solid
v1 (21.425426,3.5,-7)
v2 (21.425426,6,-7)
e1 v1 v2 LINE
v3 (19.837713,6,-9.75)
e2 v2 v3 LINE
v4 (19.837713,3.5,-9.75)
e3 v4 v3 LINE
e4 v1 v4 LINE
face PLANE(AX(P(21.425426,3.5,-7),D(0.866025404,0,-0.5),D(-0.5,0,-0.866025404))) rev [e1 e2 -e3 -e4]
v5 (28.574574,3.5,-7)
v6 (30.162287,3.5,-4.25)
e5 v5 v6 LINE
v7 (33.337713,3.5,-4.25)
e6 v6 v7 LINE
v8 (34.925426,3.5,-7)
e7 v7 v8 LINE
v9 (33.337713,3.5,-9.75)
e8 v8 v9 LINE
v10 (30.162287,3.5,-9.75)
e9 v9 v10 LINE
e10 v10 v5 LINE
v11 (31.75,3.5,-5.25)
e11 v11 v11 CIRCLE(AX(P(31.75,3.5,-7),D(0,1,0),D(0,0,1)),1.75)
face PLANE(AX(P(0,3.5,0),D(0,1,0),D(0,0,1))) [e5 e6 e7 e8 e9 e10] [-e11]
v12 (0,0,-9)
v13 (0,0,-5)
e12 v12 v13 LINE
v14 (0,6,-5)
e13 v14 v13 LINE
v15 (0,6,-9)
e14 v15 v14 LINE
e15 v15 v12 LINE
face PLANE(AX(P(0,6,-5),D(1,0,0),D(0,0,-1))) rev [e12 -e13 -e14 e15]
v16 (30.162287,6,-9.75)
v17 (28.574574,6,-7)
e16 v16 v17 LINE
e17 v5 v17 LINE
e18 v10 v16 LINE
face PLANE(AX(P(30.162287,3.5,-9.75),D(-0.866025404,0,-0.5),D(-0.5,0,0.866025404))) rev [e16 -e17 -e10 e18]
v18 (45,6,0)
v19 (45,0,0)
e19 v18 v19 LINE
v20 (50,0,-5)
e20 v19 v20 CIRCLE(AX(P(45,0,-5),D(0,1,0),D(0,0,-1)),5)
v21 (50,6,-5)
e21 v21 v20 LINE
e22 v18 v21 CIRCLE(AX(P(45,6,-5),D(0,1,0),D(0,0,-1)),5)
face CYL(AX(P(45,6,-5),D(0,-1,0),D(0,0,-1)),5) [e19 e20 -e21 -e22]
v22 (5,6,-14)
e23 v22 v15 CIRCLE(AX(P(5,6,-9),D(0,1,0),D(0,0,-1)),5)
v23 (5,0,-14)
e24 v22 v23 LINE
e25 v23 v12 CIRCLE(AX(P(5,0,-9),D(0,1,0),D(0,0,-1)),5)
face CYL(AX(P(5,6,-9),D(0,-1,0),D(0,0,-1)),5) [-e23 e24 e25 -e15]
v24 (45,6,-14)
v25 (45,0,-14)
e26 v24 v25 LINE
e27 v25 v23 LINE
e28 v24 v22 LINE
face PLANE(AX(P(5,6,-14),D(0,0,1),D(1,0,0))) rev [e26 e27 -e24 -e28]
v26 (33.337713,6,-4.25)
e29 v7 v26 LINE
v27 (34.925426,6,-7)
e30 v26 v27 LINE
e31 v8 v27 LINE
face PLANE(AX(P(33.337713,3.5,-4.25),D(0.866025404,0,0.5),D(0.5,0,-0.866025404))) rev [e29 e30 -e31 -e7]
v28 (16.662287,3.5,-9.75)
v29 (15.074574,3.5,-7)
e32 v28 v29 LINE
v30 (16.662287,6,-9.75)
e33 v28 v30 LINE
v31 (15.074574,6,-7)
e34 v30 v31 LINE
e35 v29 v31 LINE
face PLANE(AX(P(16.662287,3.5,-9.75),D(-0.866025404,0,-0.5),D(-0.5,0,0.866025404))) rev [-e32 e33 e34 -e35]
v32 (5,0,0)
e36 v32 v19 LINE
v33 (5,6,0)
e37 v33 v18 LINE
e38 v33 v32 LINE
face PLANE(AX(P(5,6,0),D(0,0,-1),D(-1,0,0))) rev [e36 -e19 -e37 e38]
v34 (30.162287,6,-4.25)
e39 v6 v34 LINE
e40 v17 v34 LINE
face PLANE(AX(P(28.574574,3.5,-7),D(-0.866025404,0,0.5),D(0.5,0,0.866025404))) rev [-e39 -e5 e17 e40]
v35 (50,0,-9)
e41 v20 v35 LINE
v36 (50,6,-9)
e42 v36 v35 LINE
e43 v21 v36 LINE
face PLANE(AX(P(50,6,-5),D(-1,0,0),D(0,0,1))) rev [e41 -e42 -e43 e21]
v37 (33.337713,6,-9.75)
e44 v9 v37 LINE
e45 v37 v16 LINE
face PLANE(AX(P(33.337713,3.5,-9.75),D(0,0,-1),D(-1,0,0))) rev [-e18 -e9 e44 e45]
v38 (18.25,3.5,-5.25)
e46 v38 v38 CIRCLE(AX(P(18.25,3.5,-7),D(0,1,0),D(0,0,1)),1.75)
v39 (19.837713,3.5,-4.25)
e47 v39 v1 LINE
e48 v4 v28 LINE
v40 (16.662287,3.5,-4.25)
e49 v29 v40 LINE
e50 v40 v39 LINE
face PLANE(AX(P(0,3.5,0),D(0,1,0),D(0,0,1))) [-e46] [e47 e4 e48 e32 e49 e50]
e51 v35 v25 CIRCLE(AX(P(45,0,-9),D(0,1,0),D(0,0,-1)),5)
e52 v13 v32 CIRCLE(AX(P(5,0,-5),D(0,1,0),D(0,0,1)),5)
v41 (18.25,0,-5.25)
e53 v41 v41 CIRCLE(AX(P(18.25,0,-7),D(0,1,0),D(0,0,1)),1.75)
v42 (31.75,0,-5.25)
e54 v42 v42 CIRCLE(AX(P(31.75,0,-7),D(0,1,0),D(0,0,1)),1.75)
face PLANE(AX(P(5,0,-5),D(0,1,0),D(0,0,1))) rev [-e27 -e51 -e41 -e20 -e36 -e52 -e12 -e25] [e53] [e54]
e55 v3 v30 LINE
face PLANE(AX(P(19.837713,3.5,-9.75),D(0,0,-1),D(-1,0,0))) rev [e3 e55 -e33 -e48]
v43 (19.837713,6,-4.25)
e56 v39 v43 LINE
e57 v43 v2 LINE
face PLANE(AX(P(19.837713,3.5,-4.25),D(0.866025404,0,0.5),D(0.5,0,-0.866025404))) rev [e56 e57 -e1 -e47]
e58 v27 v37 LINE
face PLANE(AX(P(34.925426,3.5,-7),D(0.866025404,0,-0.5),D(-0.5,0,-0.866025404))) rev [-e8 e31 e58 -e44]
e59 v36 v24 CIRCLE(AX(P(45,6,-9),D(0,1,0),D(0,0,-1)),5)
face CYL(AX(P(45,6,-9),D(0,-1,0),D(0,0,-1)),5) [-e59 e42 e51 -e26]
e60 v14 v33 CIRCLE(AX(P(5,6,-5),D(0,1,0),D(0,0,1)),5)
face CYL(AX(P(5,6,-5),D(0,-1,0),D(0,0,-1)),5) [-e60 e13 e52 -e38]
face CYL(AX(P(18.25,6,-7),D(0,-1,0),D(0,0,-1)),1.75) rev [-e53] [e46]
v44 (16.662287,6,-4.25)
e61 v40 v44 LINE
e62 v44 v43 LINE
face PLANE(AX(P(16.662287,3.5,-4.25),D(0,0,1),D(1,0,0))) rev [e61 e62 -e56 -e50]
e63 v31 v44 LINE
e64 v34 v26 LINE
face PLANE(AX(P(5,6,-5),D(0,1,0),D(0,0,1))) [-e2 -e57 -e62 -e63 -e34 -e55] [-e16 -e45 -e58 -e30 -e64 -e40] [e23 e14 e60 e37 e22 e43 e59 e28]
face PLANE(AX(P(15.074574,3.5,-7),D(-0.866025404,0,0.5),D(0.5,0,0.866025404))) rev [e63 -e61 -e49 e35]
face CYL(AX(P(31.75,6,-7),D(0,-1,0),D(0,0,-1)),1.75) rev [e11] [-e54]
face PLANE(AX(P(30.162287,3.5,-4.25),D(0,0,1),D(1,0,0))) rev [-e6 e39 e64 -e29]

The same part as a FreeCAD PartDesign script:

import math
import FreeCAD as App
import Part
import Sketcher
from FreeCAD import Vector
Q = App.Units.Quantity


def add_polygon(sketch, points):
    """Adds a closed chain of lines whose ends are joined by coincident constraints."""
    first, n = sketch.GeometryCount, len(points)
    for a, b in zip(points, points[1:] + points[:1]):
        sketch.addGeometry(Part.LineSegment(App.Vector(*a, 0), App.Vector(*b, 0)), False)
    for i in range(n):
        sketch.addConstraint(Sketcher.Constraint("Coincident", first + i, 2, first + (i + 1) % n, 1))

doc = App.newDocument("Part")
body = doc.addObject("PartDesign::Body", "Body")

sketch1 = doc.addObject("Sketcher::SketchObject", "Sketch")
body.addObject(sketch1)
sketch1.AttachmentSupport = (doc.XZ_Plane, [""])
sketch1.MapMode = "FlatFace"
sketch1.addGeometry([
    Part.LineSegment(Vector(5, 0, 0), Vector(45, 0, 0)),
    Part.ArcOfCircle(Part.Circle(Vector(45, -5, 0), Vector(0, 0, 1), 5), math.radians(0), math.radians(90)),
    Part.LineSegment(Vector(50, -5, 0), Vector(50, -9, 0)),
    Part.ArcOfCircle(Part.Circle(Vector(45, -9, 0), Vector(0, 0, 1), 5), math.radians(-90), math.radians(0)),
    Part.LineSegment(Vector(45, -14, 0), Vector(5, -14, 0)),
    Part.ArcOfCircle(Part.Circle(Vector(5, -9, 0), Vector(0, 0, 1), 5), math.radians(180), math.radians(270)),
    Part.LineSegment(Vector(0, -9, 0), Vector(0, -5, 0)),
    Part.ArcOfCircle(Part.Circle(Vector(5, -5, 0), Vector(0, 0, 1), 5), math.radians(90), math.radians(180)),
    Part.Circle(Vector(18.2, -7, 0), Vector(0, 0, 1), 1.8),
    Part.Circle(Vector(31.8, -7, 0), Vector(0, 0, 1), 1.8),
], False)
sketch1.addConstraint([
    Sketcher.Constraint("Tangent", 0, 2, 1, 2),
    Sketcher.Constraint("Tangent", 1, 1, 2, 1),
    Sketcher.Constraint("Tangent", 2, 2, 3, 2),
    Sketcher.Constraint("Tangent", 3, 1, 4, 1),
    Sketcher.Constraint("Tangent", 4, 2, 5, 2),
    Sketcher.Constraint("Tangent", 5, 1, 6, 1),
    Sketcher.Constraint("Tangent", 6, 2, 7, 2),
    Sketcher.Constraint("Tangent", 7, 1, 0, 1),
    Sketcher.Constraint("Horizontal", 0),
    Sketcher.Constraint("Vertical", 2),
    Sketcher.Constraint("Horizontal", 4),
    Sketcher.Constraint("Vertical", 6),
    Sketcher.Constraint("Equal", 1, 3),
    Sketcher.Constraint("Equal", 3, 5),
    Sketcher.Constraint("Equal", 5, 7),
    Sketcher.Constraint("Equal", 8, 9),
    Sketcher.Constraint("PointOnObject", 0, 2, -1),
    Sketcher.Constraint("PointOnObject", 5, 1, -2),
    Sketcher.Constraint("Horizontal", 8, 3, 9, 3),
    Sketcher.Constraint("Radius", 1, 5.0),
    Sketcher.Constraint("Diameter", 8, 3.5),
    Sketcher.Constraint("DistanceX", 0, 1, 0, 2, 40.0),
    Sketcher.Constraint("DistanceY", 2, 2, 2, 1, 4.0),
    Sketcher.Constraint("DistanceY", 8, 3, -1, 1, 7.0),
    Sketcher.Constraint("DistanceX", 8, 3, 9, 3, 13.5),
    Sketcher.Constraint("DistanceX", -1, 1, 8, 3, 18.25),
])
pad1 = doc.addObject("PartDesign::Pad", "Pad")
body.addObject(pad1)
pad1.Profile = sketch1
pad1.Length = 6
pad1.Reversed = True

sketch2 = doc.addObject("Sketcher::SketchObject", "Sketch001")
body.addObject(sketch2)
sketch2.AttachmentSupport = (doc.XZ_Plane, [""])
sketch2.MapMode = "FlatFace"
sketch2.AttachmentOffset = App.Placement(Vector(0, 0, -6), App.Rotation())
add_polygon(sketch2, [(19.8, -4.2), (21.4, -7), (19.8, -9.8), (16.7, -9.8), (15.1, -7), (16.7, -4.2)])
add_polygon(sketch2, [(33.3, -4.2), (34.9, -7), (33.3, -9.8), (30.2, -9.8), (28.6, -7), (30.2, -4.2)])
sketch2.addConstraint([
    Sketcher.Constraint("Horizontal", 2),
    Sketcher.Constraint("Horizontal", 5),
    Sketcher.Constraint("Horizontal", 8),
    Sketcher.Constraint("Horizontal", 11),
    Sketcher.Constraint("Parallel", 0, 3),
    Sketcher.Constraint("Parallel", 1, 4),
    Sketcher.Constraint("Parallel", 3, 6),
    Sketcher.Constraint("Parallel", 4, 7),
    Sketcher.Constraint("Parallel", 6, 9),
    Sketcher.Constraint("Parallel", 7, 10),
    Sketcher.Constraint("Horizontal", 0, 2, 3, 2),
    Sketcher.Constraint("Horizontal", 3, 2, 6, 2),
    Sketcher.Constraint("Horizontal", 2, 2, 7, 2),
    Sketcher.Constraint("Horizontal", 6, 2, 9, 2),
    Sketcher.Constraint("Horizontal", 5, 2, 10, 2),
    Sketcher.Constraint("Vertical", 2, 2, 4, 2),
    Sketcher.Constraint("Vertical", 1, 2, 5, 2),
    Sketcher.Constraint("Equal", 5, 8),
    Sketcher.Constraint("Angle", 0, Q("-60 deg")),
    Sketcher.Constraint("DistanceY", 0, 2, -1, 1, 7.0),
    Sketcher.Constraint("DistanceY", 2, 2, 4, 2, 5.5),
    Sketcher.Constraint("DistanceX", 0, 2, 6, 2, 13.5),
    Sketcher.Constraint("DistanceX", 2, 2, 2, 1, 3.175426),
    Sketcher.Constraint("DistanceX", -1, 1, 0, 2, 21.425426),
])
pocket1 = doc.addObject("PartDesign::Pocket", "Pocket")
body.addObject(pocket1)
pocket1.Profile = sketch2
pocket1.Length = 2.5
pocket1.Reversed = True

doc.recompute()
